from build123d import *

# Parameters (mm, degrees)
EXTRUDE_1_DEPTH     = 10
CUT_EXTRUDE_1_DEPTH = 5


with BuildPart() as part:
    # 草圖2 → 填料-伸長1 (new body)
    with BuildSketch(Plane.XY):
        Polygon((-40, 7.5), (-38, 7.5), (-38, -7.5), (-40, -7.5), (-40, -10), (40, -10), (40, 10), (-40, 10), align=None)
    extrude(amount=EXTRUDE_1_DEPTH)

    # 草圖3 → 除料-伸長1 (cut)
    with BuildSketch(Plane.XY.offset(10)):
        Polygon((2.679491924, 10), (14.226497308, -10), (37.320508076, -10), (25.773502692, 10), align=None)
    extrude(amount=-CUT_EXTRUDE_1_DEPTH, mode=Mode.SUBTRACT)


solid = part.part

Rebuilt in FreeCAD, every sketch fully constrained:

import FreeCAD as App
import Part
import Sketcher
Q = App.Units.Quantity


def add_polygon(sketch, points):
    """Adds a closed chain of lines whose ends are joined by coincident constraints."""
    first, n = sketch.GeometryCount, len(points)
    for a, b in zip(points, points[1:] + points[:1]):
        sketch.addGeometry(Part.LineSegment(App.Vector(*a, 0), App.Vector(*b, 0)), False)
    for i in range(n):
        sketch.addConstraint(Sketcher.Constraint("Coincident", first + i, 2, first + (i + 1) % n, 1))

doc = App.newDocument("Part")
body = doc.addObject("PartDesign::Body", "Body")

sketch1 = doc.addObject("Sketcher::SketchObject", "Sketch")
body.addObject(sketch1)
sketch1.AttachmentSupport = (doc.XY_Plane, [""])
sketch1.MapMode = "FlatFace"
add_polygon(sketch1, [(-40, 7.5), (-38, 7.5), (-38, -7.5), (-40, -7.5), (-40, -10), (40, -10), (40, 10), (-40, 10)])
sketch1.addConstraint(Sketcher.Constraint("Horizontal", 0))
sketch1.addConstraint(Sketcher.Constraint("Vertical", 1))
sketch1.addConstraint(Sketcher.Constraint("Horizontal", 2))
sketch1.addConstraint(Sketcher.Constraint("Vertical", 3))
sketch1.addConstraint(Sketcher.Constraint("Horizontal", 4))
sketch1.addConstraint(Sketcher.Constraint("Vertical", 5))
sketch1.addConstraint(Sketcher.Constraint("Horizontal", 6))
sketch1.addConstraint(Sketcher.Constraint("Vertical", 7))
sketch1.addConstraint(Sketcher.Constraint("Symmetric", 3, 2, 5, 2, -1, 1))
sketch1.addConstraint(Sketcher.Constraint("Symmetric", 2, 2, 7, 2, -1))
sketch1.addConstraint(Sketcher.Constraint("DistanceX", 0, 1, 0, 2, 2.0))
sketch1.addConstraint(Sketcher.Constraint("DistanceX", 4, 1, 4, 2, 80.0))
sketch1.addConstraint(Sketcher.Constraint("DistanceY", 1, 2, 1, 1, 15.0))
sketch1.addConstraint(Sketcher.Constraint("DistanceY", 5, 1, 5, 2, 20.0))
pad1 = doc.addObject("PartDesign::Pad", "Pad")
body.addObject(pad1)
pad1.Profile = sketch1
pad1.Length = 10

sketch2 = doc.addObject("Sketcher::SketchObject", "Sketch001")
body.addObject(sketch2)
sketch2.AttachmentSupport = (doc.XY_Plane, [""])
sketch2.MapMode = "FlatFace"
sketch2.AttachmentOffset = App.Placement(App.Vector(0, 0, 10), App.Rotation())
add_polygon(sketch2, [(3, 10), (14, -10), (37, -10), (26, 10)])
sketch2.addConstraint(Sketcher.Constraint("Horizontal", 1))
sketch2.addConstraint(Sketcher.Constraint("Horizontal", 3))
sketch2.addConstraint(Sketcher.Constraint("Parallel", 0, 2))
sketch2.addConstraint(Sketcher.Constraint("Angle", 0, Q("-60 deg")))
sketch2.addConstraint(Sketcher.Constraint("DistanceY", 0, 2, -1, 1, 10.0))
sketch2.addConstraint(Sketcher.Constraint("DistanceY", -1, 1, 2, 2, 10.0))
sketch2.addConstraint(Sketcher.Constraint("DistanceX", 1, 1, 1, 2, 23.094011))
sketch2.addConstraint(Sketcher.Constraint("DistanceX", -1, 1, 1, 2, 37.320508))
pocket1 = doc.addObject("PartDesign::Pocket", "Pocket")
body.addObject(pocket1)
pocket1.Profile = sketch2
pocket1.Length = 5

doc.recompute()
